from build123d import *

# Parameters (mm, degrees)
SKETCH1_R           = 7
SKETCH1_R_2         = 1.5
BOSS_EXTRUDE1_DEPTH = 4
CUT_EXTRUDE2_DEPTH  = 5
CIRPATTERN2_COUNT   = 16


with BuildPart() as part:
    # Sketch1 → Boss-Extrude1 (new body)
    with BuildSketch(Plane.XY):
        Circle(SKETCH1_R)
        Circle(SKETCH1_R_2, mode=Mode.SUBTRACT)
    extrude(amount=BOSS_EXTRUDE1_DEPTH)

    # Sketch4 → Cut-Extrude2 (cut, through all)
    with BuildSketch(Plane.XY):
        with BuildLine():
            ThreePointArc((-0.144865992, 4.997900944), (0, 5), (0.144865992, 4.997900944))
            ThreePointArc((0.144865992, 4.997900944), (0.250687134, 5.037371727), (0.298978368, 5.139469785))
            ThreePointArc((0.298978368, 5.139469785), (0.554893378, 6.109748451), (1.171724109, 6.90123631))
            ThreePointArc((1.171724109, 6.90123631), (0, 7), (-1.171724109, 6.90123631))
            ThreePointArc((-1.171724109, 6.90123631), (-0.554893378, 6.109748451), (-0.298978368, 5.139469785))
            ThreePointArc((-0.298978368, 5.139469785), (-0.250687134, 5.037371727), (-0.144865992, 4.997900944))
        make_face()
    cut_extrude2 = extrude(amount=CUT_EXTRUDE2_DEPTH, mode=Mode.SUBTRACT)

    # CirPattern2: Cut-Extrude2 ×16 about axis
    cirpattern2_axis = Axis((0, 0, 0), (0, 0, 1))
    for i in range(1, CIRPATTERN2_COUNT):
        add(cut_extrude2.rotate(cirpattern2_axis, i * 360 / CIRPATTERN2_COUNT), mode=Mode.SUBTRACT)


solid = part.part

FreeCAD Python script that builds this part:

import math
import FreeCAD as App
import Part
import Sketcher
Q = App.Units.Quantity

doc = App.newDocument("Part")
body = doc.addObject("PartDesign::Body", "Body")

# Sketch on XY plane
sketch1 = body.newObject("Sketcher::SketchObject", "Sketch")
sketch1.AttachmentSupport = (doc.getObject("XY_Plane"), [""])
sketch1.MapMode = "FlatFace"
sketch1.addGeometry([
    Part.Circle(App.Vector(0, 0, 0), App.Vector(0, 0, 1), 7),
    Part.Circle(App.Vector(0, 0, 0), App.Vector(0, 0, 1), 1.5),
], False)
sketch1.addConstraint([
    Sketcher.Constraint("Coincident", 0, 3, -1, 1),
    Sketcher.Constraint("Coincident", 1, 3, -1, 1),
    Sketcher.Constraint("Diameter", 0, Q("14 mm")),
    Sketcher.Constraint("Diameter", 1, Q("3 mm")),
])
pad1 = body.newObject("PartDesign::Pad", "Pad")
pad1.Profile = sketch1
pad1.Length = 4

# Sketch on XY plane
sketch2 = body.newObject("Sketcher::SketchObject", "Sketch001")
sketch2.AttachmentSupport = (doc.getObject("XY_Plane"), [""])
sketch2.MapMode = "FlatFace"
sketch2.addGeometry([
    Part.ArcOfCircle(Part.Circle(App.Vector(0, 0, 0), App.Vector(0, 0, 1), 5), math.radians(88.339726), math.radians(91.660274)),  # 0
    Part.ArcOfCircle(Part.Circle(App.Vector(0.149212, 5.147838, 0), App.Vector(0, 0, 1), 0.15), math.radians(-91.660274), math.radians(-3.198073)),  # 1
    Part.ArcOfCircle(Part.Circle(App.Vector(2.795085, 5, 0), App.Vector(0, 0, 1), 2.5), math.radians(130.492186), math.radians(176.801928)),  # 2
    Part.ArcOfCircle(Part.Circle(App.Vector(0, 0, 0), App.Vector(0, 0, 1), 7), math.radians(80.363946), math.radians(99.636054)),  # 3
    Part.ArcOfCircle(Part.Circle(App.Vector(-2.795085, 5, 0), App.Vector(0, 0, 1), 2.5), math.radians(3.198072), math.radians(49.507814)),  # 4
    Part.ArcOfCircle(Part.Circle(App.Vector(-0.149212, 5.147838, 0), App.Vector(0, 0, 1), 0.15), math.radians(-176.801927), math.radians(-88.339726)),  # 5
], False)
sketch2.addConstraint([
    Sketcher.Constraint("Tangent", 0, 1, 1, 1),
    Sketcher.Constraint("Tangent", 1, 2, 2, 2),
    Sketcher.Constraint("Coincident", 2, 1, 3, 1),
    Sketcher.Constraint("Coincident", 3, 2, 4, 2),
    Sketcher.Constraint("Tangent", 4, 1, 5, 1),
    Sketcher.Constraint("Tangent", 5, 2, 0, 2),
    Sketcher.Constraint("Coincident", 0, 3, -1, 1),
    Sketcher.Constraint("Coincident", 3, 3, -1, 1),
    Sketcher.Constraint("Equal", 2, 4),
    Sketcher.Constraint("Equal", 1, 5),
    Sketcher.Constraint("Symmetric", 2, 3, 4, 3, -2),
    Sketcher.Constraint("Radius", 0, Q("5 mm")),
    Sketcher.Constraint("Radius", 3, Q("7 mm")),
    Sketcher.Constraint("Radius", 2, Q("2.5 mm")),
    Sketcher.Constraint("Radius", 1, Q("0.15 mm")),
    Sketcher.Constraint("DistanceY", -1, 1, 2, 3, Q("5 mm")),
    Sketcher.Constraint("DistanceY", -1, 1, 0, 1, Q("4.997901 mm")),
])
pocket1 = body.newObject("PartDesign::Pocket", "Pocket")
pocket1.Profile = sketch2
pocket1.Type = "ThroughAll"
pocket1.Reversed = True
doc.recompute()

polarpattern = body.newObject("PartDesign::PolarPattern", "PolarPattern")
polarpattern.Originals = [pocket1]
polarpattern.Axis = (doc.getObject("Z_Axis"), [""])
polarpattern.Angle = 360
polarpattern.Occurrences = 16
body.Tip = polarpattern

doc.recompute()
